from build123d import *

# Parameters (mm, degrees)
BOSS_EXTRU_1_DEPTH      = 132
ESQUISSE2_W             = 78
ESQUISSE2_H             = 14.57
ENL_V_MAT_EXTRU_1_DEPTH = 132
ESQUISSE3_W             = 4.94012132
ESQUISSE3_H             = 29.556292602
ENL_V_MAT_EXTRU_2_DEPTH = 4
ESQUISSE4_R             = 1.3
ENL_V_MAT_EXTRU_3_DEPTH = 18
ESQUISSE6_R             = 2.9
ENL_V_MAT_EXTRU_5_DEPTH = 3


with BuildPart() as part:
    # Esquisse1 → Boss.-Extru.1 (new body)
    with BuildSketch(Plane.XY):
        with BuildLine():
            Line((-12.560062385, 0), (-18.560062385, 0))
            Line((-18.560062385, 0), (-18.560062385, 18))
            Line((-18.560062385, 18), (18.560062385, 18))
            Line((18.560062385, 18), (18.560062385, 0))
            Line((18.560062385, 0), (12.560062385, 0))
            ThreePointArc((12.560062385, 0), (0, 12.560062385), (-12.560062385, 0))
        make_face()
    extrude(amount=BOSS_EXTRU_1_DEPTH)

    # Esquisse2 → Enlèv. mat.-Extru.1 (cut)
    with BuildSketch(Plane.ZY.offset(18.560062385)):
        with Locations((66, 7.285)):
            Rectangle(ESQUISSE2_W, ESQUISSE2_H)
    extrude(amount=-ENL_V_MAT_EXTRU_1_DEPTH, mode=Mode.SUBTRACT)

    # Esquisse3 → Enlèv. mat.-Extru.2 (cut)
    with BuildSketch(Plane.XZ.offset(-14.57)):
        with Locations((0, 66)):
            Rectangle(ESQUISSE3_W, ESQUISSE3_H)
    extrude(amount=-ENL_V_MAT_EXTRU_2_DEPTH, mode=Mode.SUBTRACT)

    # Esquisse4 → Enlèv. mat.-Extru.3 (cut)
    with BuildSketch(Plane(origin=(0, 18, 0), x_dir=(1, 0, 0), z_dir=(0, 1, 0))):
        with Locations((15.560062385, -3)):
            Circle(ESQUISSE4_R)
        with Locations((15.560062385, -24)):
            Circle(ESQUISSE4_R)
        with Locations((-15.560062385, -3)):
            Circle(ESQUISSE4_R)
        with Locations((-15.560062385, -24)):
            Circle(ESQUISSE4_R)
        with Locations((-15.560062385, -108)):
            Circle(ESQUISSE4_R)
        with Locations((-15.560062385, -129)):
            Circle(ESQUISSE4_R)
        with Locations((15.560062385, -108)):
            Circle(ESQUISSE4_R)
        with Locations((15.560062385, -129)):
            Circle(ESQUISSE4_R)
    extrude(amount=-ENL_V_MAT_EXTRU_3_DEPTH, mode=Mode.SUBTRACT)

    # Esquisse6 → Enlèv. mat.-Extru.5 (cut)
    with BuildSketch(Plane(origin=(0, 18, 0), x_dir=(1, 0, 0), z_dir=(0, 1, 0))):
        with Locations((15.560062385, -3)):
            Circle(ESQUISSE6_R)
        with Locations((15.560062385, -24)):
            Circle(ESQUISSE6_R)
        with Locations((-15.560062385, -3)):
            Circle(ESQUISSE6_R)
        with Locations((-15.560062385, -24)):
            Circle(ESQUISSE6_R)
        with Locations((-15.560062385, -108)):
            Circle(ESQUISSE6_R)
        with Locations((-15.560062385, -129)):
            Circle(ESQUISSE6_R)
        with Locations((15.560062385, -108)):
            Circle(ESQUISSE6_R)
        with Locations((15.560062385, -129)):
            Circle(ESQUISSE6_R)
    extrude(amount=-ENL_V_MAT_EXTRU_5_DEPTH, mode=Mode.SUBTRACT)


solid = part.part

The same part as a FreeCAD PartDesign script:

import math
import FreeCAD as App
import Part
import Sketcher
Q = App.Units.Quantity

doc = App.newDocument("Part")
body = doc.addObject("PartDesign::Body", "Body")

sketch1 = body.newObject("Sketcher::SketchObject", "Sketch")
sketch1.AttachmentSupport = (doc.getObject("XY_Plane"), [""])
sketch1.MapMode = "FlatFace"
sketch1.addGeometry([
    Part.LineSegment(App.Vector(-19, 0, 0), App.Vector(-13, 0, 0)),
    Part.ArcOfCircle(Part.Circle(App.Vector(0, 0, 0), App.Vector(0, 0, 1), 13), math.radians(0), math.radians(180)),
    Part.LineSegment(App.Vector(13, 0, 0), App.Vector(19, 0, 0)),
    Part.LineSegment(App.Vector(19, 0, 0), App.Vector(19, 18, 0)),
    Part.LineSegment(App.Vector(19, 18, 0), App.Vector(-19, 18, 0)),
    Part.LineSegment(App.Vector(-19, 18, 0), App.Vector(-19, 0, 0)),
], False)
sketch1.addConstraint([
    Sketcher.Constraint("Coincident", 0, 2, 1, 2),
    Sketcher.Constraint("Coincident", 1, 1, 2, 1),
    Sketcher.Constraint("Coincident", 2, 2, 3, 1),
    Sketcher.Constraint("Coincident", 3, 2, 4, 1),
    Sketcher.Constraint("Coincident", 4, 2, 5, 1),
    Sketcher.Constraint("Coincident", 5, 2, 0, 1),
    Sketcher.Constraint("Horizontal", 0),
    Sketcher.Constraint("Horizontal", 2),
    Sketcher.Constraint("Vertical", 3),
    Sketcher.Constraint("Horizontal", 4),
    Sketcher.Constraint("Vertical", 5),
    Sketcher.Constraint("Coincident", 1, 3, -1, 1),
    Sketcher.Constraint("Symmetric", 2, 2, 5, 2, -1, 1),
    Sketcher.Constraint("PointOnObject", 0, 2, -1),
    Sketcher.Constraint("DistanceX", 0, 1, 0, 2, Q("6 mm")),
    Sketcher.Constraint("DistanceY", 3, 1, 3, 2, Q("18 mm")),
    Sketcher.Constraint("Radius", 1, Q("12.560062 mm")),
])
pad1 = body.newObject("PartDesign::Pad", "Pad")
pad1.Profile = sketch1
pad1.Length = 132

sketch2 = body.newObject("Sketcher::SketchObject", "Sketch001")
sketch2.AttachmentSupport = (doc.getObject("YZ_Plane"), [""])
sketch2.MapMode = "FlatFace"
sketch2.AttachmentOffset = App.Placement(App.Vector(0, 0, -18.560062), App.Rotation())
sketch2.addGeometry([
    Part.LineSegment(App.Vector(15, 27, 0), App.Vector(0, 27, 0)),
    Part.LineSegment(App.Vector(0, 27, 0), App.Vector(0, 105, 0)),
    Part.LineSegment(App.Vector(0, 105, 0), App.Vector(15, 105, 0)),
    Part.LineSegment(App.Vector(15, 105, 0), App.Vector(15, 27, 0)),
], False)
sketch2.addConstraint([
    Sketcher.Constraint("Coincident", 0, 2, 1, 1),
    Sketcher.Constraint("Coincident", 1, 2, 2, 1),
    Sketcher.Constraint("Coincident", 2, 2, 3, 1),
    Sketcher.Constraint("Coincident", 3, 2, 0, 1),
    Sketcher.Constraint("Horizontal", 0),
    Sketcher.Constraint("Vertical", 1),
    Sketcher.Constraint("Horizontal", 2),
    Sketcher.Constraint("Vertical", 3),
    Sketcher.Constraint("PointOnObject", 0, 2, -2),
    Sketcher.Constraint("DistanceY", 1, 1, 1, 2, Q("78 mm")),
    Sketcher.Constraint("DistanceY", -1, 1, 0, 2, Q("27 mm")),
    Sketcher.Constraint("DistanceX", 0, 2, 0, 1, Q("14.57 mm")),
])
pocket1 = body.newObject("PartDesign::Pocket", "Pocket")
pocket1.Profile = sketch2
pocket1.Length = 132
pocket1.Reversed = True

sketch3 = body.newObject("Sketcher::SketchObject", "Sketch002")
sketch3.AttachmentSupport = (doc.getObject("XZ_Plane"), [""])
sketch3.MapMode = "FlatFace"
sketch3.AttachmentOffset = App.Placement(App.Vector(0, 0, -14.57), App.Rotation())
sketch3.addGeometry([
    Part.LineSegment(App.Vector(-2.5, 80.8, 0), App.Vector(-2.5, 51.2, 0)),
    Part.LineSegment(App.Vector(-2.5, 51.2, 0), App.Vector(2.5, 51.2, 0)),
    Part.LineSegment(App.Vector(2.5, 51.2, 0), App.Vector(2.5, 80.8, 0)),
    Part.LineSegment(App.Vector(2.5, 80.8, 0), App.Vector(-2.5, 80.8, 0)),
], False)
sketch3.addConstraint([
    Sketcher.Constraint("Coincident", 0, 2, 1, 1),
    Sketcher.Constraint("Coincident", 1, 2, 2, 1),
    Sketcher.Constraint("Coincident", 2, 2, 3, 1),
    Sketcher.Constraint("Coincident", 3, 2, 0, 1),
    Sketcher.Constraint("Vertical", 0),
    Sketcher.Constraint("Horizontal", 1),
    Sketcher.Constraint("Vertical", 2),
    Sketcher.Constraint("Horizontal", 3),
    Sketcher.Constraint("DistanceX", 1, 1, 1, 2, Q("4.940121 mm")),
    Sketcher.Constraint("DistanceY", 0, 2, 0, 1, Q("29.556293 mm")),
    Sketcher.Constraint("DistanceX", 0, 2, -1, 1, Q("2.470061 mm")),
    Sketcher.Constraint("DistanceY", -1, 1, 0, 2, Q("51.221854 mm")),
])
pocket2 = body.newObject("PartDesign::Pocket", "Pocket001")
pocket2.Profile = sketch3
pocket2.Length = 4

sketch4 = body.newObject("Sketcher::SketchObject", "Sketch003")
sketch4.AttachmentSupport = (doc.getObject("XZ_Plane"), [""])
sketch4.MapMode = "FlatFace"
sketch4.AttachmentOffset = App.Placement(App.Vector(0, 0, -18), App.Rotation())
sketch4.addGeometry([
    Part.Circle(App.Vector(15.6, 3, 0), App.Vector(0, 0, 1), 1.3),
    Part.Circle(App.Vector(15.6, 24, 0), App.Vector(0, 0, 1), 1.3),
    Part.Circle(App.Vector(-15.6, 3, 0), App.Vector(0, 0, 1), 1.3),
    Part.Circle(App.Vector(-15.6, 24, 0), App.Vector(0, 0, 1), 1.3),
    Part.Circle(App.Vector(-15.6, 108, 0), App.Vector(0, 0, 1), 1.3),
    Part.Circle(App.Vector(-15.6, 129, 0), App.Vector(0, 0, 1), 1.3),
    Part.Circle(App.Vector(15.6, 108, 0), App.Vector(0, 0, 1), 1.3),
    Part.Circle(App.Vector(15.6, 129, 0), App.Vector(0, 0, 1), 1.3),
], False)
sketch4.addConstraint([
    Sketcher.Constraint("Equal", 0, 1),
    Sketcher.Constraint("Equal", 1, 2),
    Sketcher.Constraint("Equal", 2, 3),
    Sketcher.Constraint("Equal", 3, 4),
    Sketcher.Constraint("Equal", 4, 5),
    Sketcher.Constraint("Equal", 5, 6),
    Sketcher.Constraint("Equal", 6, 7),
    Sketcher.Constraint("Symmetric", 0, 3, 2, 3, -2),
    Sketcher.Constraint("Symmetric", 1, 3, 3, 3, -2),
    Sketcher.Constraint("Symmetric", 4, 3, 6, 3, -2),
    Sketcher.Constraint("Symmetric", 5, 3, 7, 3, -2),
    Sketcher.Constraint("Vertical", 0, 3, 1, 3),
    Sketcher.Constraint("Vertical", 3, 3, 4, 3),
    Sketcher.Constraint("Vertical", 4, 3, 5, 3),
    Sketcher.Constraint("Diameter", 0, Q("2.6 mm")),
    Sketcher.Constraint("DistanceY", -1, 1, 0, 3, Q("3 mm")),
    Sketcher.Constraint("DistanceY", -1, 1, 1, 3, Q("24 mm")),
    Sketcher.Constraint("DistanceY", -1, 1, 4, 3, Q("108 mm")),
    Sketcher.Constraint("DistanceY", -1, 1, 5, 3, Q("129 mm")),
    Sketcher.Constraint("DistanceX", -1, 1, 0, 3, Q("15.560062 mm")),
])
pocket3 = body.newObject("PartDesign::Pocket", "Pocket002")
pocket3.Profile = sketch4
pocket3.Length = 18
pocket3.Reversed = True

sketch5 = body.newObject("Sketcher::SketchObject", "Sketch004")
sketch5.AttachmentSupport = (doc.getObject("XZ_Plane"), [""])
sketch5.MapMode = "FlatFace"
sketch5.AttachmentOffset = App.Placement(App.Vector(0, 0, -18), App.Rotation())
sketch5.addGeometry([
    Part.Circle(App.Vector(15.6, 3, 0), App.Vector(0, 0, 1), 2.9),
    Part.Circle(App.Vector(15.6, 24, 0), App.Vector(0, 0, 1), 2.9),
    Part.Circle(App.Vector(-15.6, 3, 0), App.Vector(0, 0, 1), 2.9),
    Part.Circle(App.Vector(-15.6, 24, 0), App.Vector(0, 0, 1), 2.9),
    Part.Circle(App.Vector(-15.6, 108, 0), App.Vector(0, 0, 1), 2.9),
    Part.Circle(App.Vector(-15.6, 129, 0), App.Vector(0, 0, 1), 2.9),
    Part.Circle(App.Vector(15.6, 108, 0), App.Vector(0, 0, 1), 2.9),
    Part.Circle(App.Vector(15.6, 129, 0), App.Vector(0, 0, 1), 2.9),
], False)
sketch5.addConstraint([
    Sketcher.Constraint("Equal", 0, 1),
    Sketcher.Constraint("Equal", 1, 2),
    Sketcher.Constraint("Equal", 2, 3),
    Sketcher.Constraint("Equal", 3, 4),
    Sketcher.Constraint("Equal", 4, 5),
    Sketcher.Constraint("Equal", 5, 6),
    Sketcher.Constraint("Equal", 6, 7),
    Sketcher.Constraint("Symmetric", 0, 3, 2, 3, -2),
    Sketcher.Constraint("Symmetric", 1, 3, 3, 3, -2),
    Sketcher.Constraint("Symmetric", 4, 3, 6, 3, -2),
    Sketcher.Constraint("Symmetric", 5, 3, 7, 3, -2),
    Sketcher.Constraint("Vertical", 0, 3, 1, 3),
    Sketcher.Constraint("Vertical", 3, 3, 4, 3),
    Sketcher.Constraint("Vertical", 4, 3, 5, 3),
    Sketcher.Constraint("Diameter", 0, Q("5.8 mm")),
    Sketcher.Constraint("DistanceY", -1, 1, 0, 3, Q("3 mm")),
    Sketcher.Constraint("DistanceY", -1, 1, 1, 3, Q("24 mm")),
    Sketcher.Constraint("DistanceY", -1, 1, 4, 3, Q("108 mm")),
    Sketcher.Constraint("DistanceY", -1, 1, 5, 3, Q("129 mm")),
    Sketcher.Constraint("DistanceX", -1, 1, 0, 3, Q("15.560062 mm")),
])
pocket4 = body.newObject("PartDesign::Pocket", "Pocket003")
pocket4.Profile = sketch5
pocket4.Length = 3
pocket4.Reversed = True

doc.recompute()
